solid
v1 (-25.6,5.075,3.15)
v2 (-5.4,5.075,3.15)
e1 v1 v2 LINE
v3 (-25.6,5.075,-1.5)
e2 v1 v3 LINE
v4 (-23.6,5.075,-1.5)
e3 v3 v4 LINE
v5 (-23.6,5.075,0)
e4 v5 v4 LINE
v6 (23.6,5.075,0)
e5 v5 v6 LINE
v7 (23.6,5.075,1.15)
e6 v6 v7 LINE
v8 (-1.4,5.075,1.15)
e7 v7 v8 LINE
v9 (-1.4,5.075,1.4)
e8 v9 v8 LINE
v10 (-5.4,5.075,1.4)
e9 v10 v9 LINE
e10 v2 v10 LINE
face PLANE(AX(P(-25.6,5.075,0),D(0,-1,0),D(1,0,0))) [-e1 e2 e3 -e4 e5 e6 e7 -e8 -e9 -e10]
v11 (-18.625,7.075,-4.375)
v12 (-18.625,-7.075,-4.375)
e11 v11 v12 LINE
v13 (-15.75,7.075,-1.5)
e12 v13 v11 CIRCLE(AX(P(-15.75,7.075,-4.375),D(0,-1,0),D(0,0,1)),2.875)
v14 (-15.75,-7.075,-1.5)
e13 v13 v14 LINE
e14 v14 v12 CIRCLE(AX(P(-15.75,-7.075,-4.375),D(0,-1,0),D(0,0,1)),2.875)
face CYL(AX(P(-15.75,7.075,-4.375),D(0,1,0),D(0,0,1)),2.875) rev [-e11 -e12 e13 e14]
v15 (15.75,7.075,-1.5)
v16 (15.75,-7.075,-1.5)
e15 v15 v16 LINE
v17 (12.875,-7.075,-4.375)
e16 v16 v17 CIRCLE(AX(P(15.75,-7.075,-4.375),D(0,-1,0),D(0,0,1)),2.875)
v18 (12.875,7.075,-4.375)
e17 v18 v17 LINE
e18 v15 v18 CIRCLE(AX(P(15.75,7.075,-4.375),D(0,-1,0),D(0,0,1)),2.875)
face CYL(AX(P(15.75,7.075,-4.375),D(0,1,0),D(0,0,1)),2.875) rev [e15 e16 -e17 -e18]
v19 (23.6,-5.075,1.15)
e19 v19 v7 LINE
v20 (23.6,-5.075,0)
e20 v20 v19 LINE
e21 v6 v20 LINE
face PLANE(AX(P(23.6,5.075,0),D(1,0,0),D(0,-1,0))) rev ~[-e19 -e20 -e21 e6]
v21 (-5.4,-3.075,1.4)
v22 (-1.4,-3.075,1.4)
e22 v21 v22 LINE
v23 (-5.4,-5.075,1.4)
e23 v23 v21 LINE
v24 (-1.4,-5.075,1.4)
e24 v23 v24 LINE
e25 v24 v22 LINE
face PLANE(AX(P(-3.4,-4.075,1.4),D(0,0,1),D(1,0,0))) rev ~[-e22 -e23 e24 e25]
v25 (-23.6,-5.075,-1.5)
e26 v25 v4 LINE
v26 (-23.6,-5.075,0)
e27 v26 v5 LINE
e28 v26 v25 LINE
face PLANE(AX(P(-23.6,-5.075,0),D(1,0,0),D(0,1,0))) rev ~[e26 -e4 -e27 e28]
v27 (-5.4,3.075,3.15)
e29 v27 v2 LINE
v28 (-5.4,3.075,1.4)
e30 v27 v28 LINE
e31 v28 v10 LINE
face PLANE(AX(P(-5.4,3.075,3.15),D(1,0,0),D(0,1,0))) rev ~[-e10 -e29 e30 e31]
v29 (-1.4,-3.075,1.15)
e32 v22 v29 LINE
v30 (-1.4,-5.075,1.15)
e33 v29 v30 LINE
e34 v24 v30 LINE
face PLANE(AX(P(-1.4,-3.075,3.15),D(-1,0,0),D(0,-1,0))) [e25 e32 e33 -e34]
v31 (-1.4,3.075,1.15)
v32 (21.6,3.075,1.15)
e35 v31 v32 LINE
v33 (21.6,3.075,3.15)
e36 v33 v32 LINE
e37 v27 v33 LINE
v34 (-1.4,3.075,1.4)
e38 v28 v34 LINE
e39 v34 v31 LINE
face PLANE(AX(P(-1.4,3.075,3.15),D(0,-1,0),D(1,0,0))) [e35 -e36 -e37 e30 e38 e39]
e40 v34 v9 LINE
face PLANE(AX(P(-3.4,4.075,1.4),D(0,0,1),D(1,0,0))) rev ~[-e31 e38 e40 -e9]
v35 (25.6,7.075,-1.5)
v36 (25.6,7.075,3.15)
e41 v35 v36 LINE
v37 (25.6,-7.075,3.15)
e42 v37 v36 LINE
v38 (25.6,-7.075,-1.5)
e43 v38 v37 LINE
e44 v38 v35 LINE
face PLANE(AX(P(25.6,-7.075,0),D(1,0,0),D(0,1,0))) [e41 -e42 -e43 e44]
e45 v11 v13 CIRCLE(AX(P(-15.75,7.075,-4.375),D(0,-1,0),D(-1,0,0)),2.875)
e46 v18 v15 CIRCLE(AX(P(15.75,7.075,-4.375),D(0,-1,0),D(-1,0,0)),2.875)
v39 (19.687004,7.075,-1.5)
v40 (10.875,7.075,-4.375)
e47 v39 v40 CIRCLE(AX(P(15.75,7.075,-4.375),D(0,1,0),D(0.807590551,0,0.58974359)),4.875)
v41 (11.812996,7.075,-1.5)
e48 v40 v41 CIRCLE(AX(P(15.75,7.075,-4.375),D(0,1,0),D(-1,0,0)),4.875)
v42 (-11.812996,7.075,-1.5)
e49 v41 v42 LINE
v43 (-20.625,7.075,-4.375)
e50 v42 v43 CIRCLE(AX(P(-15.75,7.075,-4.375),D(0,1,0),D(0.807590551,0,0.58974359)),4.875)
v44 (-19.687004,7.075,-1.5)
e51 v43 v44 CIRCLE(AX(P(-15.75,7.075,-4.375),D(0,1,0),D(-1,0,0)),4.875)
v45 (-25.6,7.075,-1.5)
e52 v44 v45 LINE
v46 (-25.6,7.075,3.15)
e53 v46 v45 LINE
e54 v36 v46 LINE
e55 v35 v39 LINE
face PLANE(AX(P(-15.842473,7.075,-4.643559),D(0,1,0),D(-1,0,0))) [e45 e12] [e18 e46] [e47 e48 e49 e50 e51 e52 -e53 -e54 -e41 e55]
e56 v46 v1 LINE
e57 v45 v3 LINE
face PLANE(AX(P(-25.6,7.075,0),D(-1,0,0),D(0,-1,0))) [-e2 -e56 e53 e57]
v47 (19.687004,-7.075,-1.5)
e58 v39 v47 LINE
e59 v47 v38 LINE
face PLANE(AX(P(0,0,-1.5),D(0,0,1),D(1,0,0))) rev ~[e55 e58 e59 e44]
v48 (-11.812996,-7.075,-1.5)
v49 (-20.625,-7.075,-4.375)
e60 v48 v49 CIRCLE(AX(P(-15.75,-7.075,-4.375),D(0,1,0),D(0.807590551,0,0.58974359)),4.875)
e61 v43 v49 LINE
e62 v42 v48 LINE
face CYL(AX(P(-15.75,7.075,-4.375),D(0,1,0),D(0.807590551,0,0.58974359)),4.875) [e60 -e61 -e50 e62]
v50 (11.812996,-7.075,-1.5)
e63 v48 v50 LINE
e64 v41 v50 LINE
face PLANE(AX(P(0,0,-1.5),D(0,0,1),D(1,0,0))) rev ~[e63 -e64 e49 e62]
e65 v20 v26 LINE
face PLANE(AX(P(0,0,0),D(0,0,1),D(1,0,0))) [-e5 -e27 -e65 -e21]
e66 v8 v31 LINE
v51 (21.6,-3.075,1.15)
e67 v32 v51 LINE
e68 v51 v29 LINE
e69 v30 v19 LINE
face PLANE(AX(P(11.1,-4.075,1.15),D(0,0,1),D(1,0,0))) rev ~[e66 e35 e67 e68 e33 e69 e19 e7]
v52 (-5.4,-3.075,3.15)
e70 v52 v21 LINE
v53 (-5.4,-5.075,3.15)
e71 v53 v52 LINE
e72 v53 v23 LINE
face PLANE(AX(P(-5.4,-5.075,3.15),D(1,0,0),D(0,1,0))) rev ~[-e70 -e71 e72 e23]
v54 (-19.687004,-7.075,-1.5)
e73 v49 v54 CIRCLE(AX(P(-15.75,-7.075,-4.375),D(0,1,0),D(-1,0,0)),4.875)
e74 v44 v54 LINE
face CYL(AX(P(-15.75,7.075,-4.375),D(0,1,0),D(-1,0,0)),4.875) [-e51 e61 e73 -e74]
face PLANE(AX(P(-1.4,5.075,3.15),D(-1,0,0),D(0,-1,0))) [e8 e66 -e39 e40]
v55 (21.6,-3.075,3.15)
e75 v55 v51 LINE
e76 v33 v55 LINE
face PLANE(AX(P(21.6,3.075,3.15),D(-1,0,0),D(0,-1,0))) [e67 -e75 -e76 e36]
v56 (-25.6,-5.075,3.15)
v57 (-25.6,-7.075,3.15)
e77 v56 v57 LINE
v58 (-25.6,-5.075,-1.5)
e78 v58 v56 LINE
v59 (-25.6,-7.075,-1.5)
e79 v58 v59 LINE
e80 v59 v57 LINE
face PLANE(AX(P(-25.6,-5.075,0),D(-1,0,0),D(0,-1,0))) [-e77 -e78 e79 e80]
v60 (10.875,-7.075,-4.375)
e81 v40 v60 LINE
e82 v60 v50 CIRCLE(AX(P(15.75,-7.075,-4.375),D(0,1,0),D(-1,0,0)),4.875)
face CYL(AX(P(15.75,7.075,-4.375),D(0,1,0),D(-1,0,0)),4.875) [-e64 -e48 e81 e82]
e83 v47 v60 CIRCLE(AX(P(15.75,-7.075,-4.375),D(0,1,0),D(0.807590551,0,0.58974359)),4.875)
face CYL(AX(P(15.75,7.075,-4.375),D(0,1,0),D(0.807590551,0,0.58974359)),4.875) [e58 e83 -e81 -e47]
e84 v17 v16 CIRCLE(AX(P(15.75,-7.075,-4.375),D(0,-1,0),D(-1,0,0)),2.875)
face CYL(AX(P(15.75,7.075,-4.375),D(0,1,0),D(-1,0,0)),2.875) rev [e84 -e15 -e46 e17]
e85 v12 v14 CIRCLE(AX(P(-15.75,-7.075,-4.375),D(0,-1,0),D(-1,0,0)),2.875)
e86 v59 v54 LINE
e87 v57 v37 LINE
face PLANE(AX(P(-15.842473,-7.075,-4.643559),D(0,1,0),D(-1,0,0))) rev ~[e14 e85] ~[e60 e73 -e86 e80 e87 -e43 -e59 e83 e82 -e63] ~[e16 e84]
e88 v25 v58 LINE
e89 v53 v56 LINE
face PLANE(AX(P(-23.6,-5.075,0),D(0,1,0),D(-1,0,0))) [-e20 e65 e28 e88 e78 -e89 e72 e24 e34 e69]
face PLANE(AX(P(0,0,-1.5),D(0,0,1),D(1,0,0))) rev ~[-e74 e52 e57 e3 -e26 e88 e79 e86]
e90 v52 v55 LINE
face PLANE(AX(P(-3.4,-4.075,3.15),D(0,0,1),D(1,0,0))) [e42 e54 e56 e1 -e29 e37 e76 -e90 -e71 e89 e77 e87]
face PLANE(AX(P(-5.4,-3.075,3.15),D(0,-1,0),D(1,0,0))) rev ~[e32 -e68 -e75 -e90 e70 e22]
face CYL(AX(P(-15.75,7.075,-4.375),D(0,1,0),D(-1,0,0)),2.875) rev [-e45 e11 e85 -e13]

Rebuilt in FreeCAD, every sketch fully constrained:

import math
import FreeCAD as App
import Part
import Sketcher
Q = App.Units.Quantity

doc = App.newDocument("Part")
body = doc.addObject("PartDesign::Body", "Body")

sketch1 = body.newObject("Sketcher::SketchObject", "Sketch")
sketch1.AttachmentSupport = (doc.getObject("XY_Plane"), [""])
sketch1.MapMode = "FlatFace"
sketch1.addGeometry([
    Part.LineSegment(App.Vector(23.6, 5.1, 0), App.Vector(23.6, -5.1, 0)),
    Part.LineSegment(App.Vector(23.6, -5.1, 0), App.Vector(-25.6, -5.1, 0)),
    Part.LineSegment(App.Vector(-25.6, -5.1, 0), App.Vector(-25.6, -7.1, 0)),
    Part.LineSegment(App.Vector(-25.6, -7.1, 0), App.Vector(25.6, -7.1, 0)),
    Part.LineSegment(App.Vector(25.6, -7.1, 0), App.Vector(25.6, 7.1, 0)),
    Part.LineSegment(App.Vector(25.6, 7.1, 0), App.Vector(-25.6, 7.1, 0)),
    Part.LineSegment(App.Vector(-25.6, 7.1, 0), App.Vector(-25.6, 5.1, 0)),
    Part.LineSegment(App.Vector(-25.6, 5.1, 0), App.Vector(23.6, 5.1, 0)),
], False)
sketch1.addConstraint([
    Sketcher.Constraint("Coincident", 0, 2, 1, 1),
    Sketcher.Constraint("Coincident", 1, 2, 2, 1),
    Sketcher.Constraint("Coincident", 2, 2, 3, 1),
    Sketcher.Constraint("Coincident", 3, 2, 4, 1),
    Sketcher.Constraint("Coincident", 4, 2, 5, 1),
    Sketcher.Constraint("Coincident", 5, 2, 6, 1),
    Sketcher.Constraint("Coincident", 6, 2, 7, 1),
    Sketcher.Constraint("Coincident", 7, 2, 0, 1),
    Sketcher.Constraint("Vertical", 0),
    Sketcher.Constraint("Horizontal", 1),
    Sketcher.Constraint("Vertical", 2),
    Sketcher.Constraint("Horizontal", 3),
    Sketcher.Constraint("Vertical", 4),
    Sketcher.Constraint("Horizontal", 5),
    Sketcher.Constraint("Vertical", 6),
    Sketcher.Constraint("Horizontal", 7),
    Sketcher.Constraint("Symmetric", 2, 2, 4, 2, -1, 1),
    Sketcher.Constraint("Symmetric", 1, 2, 6, 2, -1),
    Sketcher.Constraint("DistanceY", 2, 2, 2, 1, Q("2 mm")),
    Sketcher.Constraint("DistanceX", 1, 2, 1, 1, Q("49.2 mm")),
    Sketcher.Constraint("DistanceX", 3, 1, 3, 2, Q("51.2 mm")),
    Sketcher.Constraint("DistanceY", 0, 2, 0, 1, Q("10.15 mm")),
])
pad1 = body.newObject("PartDesign::Pad", "Pad")
pad1.Profile = sketch1
pad1.Length = 3.15

sketch2 = body.newObject("Sketcher::SketchObject", "Sketch001")
sketch2.AttachmentSupport = (doc.getObject("XY_Plane"), [""])
sketch2.MapMode = "FlatFace"
sketch2.addGeometry([
    Part.LineSegment(App.Vector(-23.6, 5.1, 0), App.Vector(-23.6, -5.1, 0)),
    Part.LineSegment(App.Vector(-23.6, -5.1, 0), App.Vector(-25.6, -5.1, 0)),
    Part.LineSegment(App.Vector(-25.6, -5.1, 0), App.Vector(-25.6, -7.1, 0)),
    Part.LineSegment(App.Vector(-25.6, -7.1, 0), App.Vector(25.6, -7.1, 0)),
    Part.LineSegment(App.Vector(25.6, -7.1, 0), App.Vector(25.6, 7.1, 0)),
    Part.LineSegment(App.Vector(25.6, 7.1, 0), App.Vector(-25.6, 7.1, 0)),
    Part.LineSegment(App.Vector(-25.6, 7.1, 0), App.Vector(-25.6, 5.1, 0)),
    Part.LineSegment(App.Vector(-25.6, 5.1, 0), App.Vector(-23.6, 5.1, 0)),
], False)
sketch2.addConstraint([
    Sketcher.Constraint("Coincident", 0, 2, 1, 1),
    Sketcher.Constraint("Coincident", 1, 2, 2, 1),
    Sketcher.Constraint("Coincident", 2, 2, 3, 1),
    Sketcher.Constraint("Coincident", 3, 2, 4, 1),
    Sketcher.Constraint("Coincident", 4, 2, 5, 1),
    Sketcher.Constraint("Coincident", 5, 2, 6, 1),
    Sketcher.Constraint("Coincident", 6, 2, 7, 1),
    Sketcher.Constraint("Coincident", 7, 2, 0, 1),
    Sketcher.Constraint("Vertical", 0),
    Sketcher.Constraint("Horizontal", 1),
    Sketcher.Constraint("Vertical", 2),
    Sketcher.Constraint("Horizontal", 3),
    Sketcher.Constraint("Vertical", 4),
    Sketcher.Constraint("Horizontal", 5),
    Sketcher.Constraint("Vertical", 6),
    Sketcher.Constraint("Horizontal", 7),
    Sketcher.Constraint("Symmetric", 2, 2, 4, 2, -1, 1),
    Sketcher.Constraint("Symmetric", 1, 2, 6, 2, -1),
    Sketcher.Constraint("Equal", 7, 2),
    Sketcher.Constraint("DistanceX", 1, 2, 1, 1, Q("2 mm")),
    Sketcher.Constraint("DistanceX", 3, 1, 3, 2, Q("51.2 mm")),
    Sketcher.Constraint("DistanceY", 0, 2, 0, 1, Q("10.15 mm")),
])
pad2 = body.newObject("PartDesign::Pad", "Pad001")
pad2.Profile = sketch2
pad2.Length = 1.5
pad2.Reversed = True

sketch3 = body.newObject("Sketcher::SketchObject", "Sketch002")
sketch3.AttachmentSupport = (doc.getObject("XY_Plane"), [""])
sketch3.MapMode = "FlatFace"
sketch3.AttachmentOffset = App.Placement(App.Vector(0, 0, 3.15), App.Rotation())
sketch3.addGeometry([
    Part.LineSegment(App.Vector(23.6, -5.1, 0), App.Vector(23.6, 5.1, 0)),
    Part.LineSegment(App.Vector(23.6, 5.1, 0), App.Vector(-1.4, 5.1, 0)),
    Part.LineSegment(App.Vector(-1.4, 5.1, 0), App.Vector(-1.4, 3.1, 0)),
    Part.LineSegment(App.Vector(-1.4, 3.1, 0), App.Vector(21.6, 3.1, 0)),
    Part.LineSegment(App.Vector(21.6, 3.1, 0), App.Vector(21.6, -3.1, 0)),
    Part.LineSegment(App.Vector(21.6, -3.1, 0), App.Vector(-1.4, -3.1, 0)),
    Part.LineSegment(App.Vector(-1.4, -3.1, 0), App.Vector(-1.4, -5.1, 0)),
    Part.LineSegment(App.Vector(-1.4, -5.1, 0), App.Vector(23.6, -5.1, 0)),
], False)
sketch3.addConstraint([
    Sketcher.Constraint("Coincident", 0, 2, 1, 1),
    Sketcher.Constraint("Coincident", 1, 2, 2, 1),
    Sketcher.Constraint("Coincident", 2, 2, 3, 1),
    Sketcher.Constraint("Coincident", 3, 2, 4, 1),
    Sketcher.Constraint("Coincident", 4, 2, 5, 1),
    Sketcher.Constraint("Coincident", 5, 2, 6, 1),
    Sketcher.Constraint("Coincident", 6, 2, 7, 1),
    Sketcher.Constraint("Coincident", 7, 2, 0, 1),
    Sketcher.Constraint("Vertical", 0),
    Sketcher.Constraint("Horizontal", 1),
    Sketcher.Constraint("Vertical", 2),
    Sketcher.Constraint("Horizontal", 3),
    Sketcher.Constraint("Vertical", 4),
    Sketcher.Constraint("Horizontal", 5),
    Sketcher.Constraint("Vertical", 6),
    Sketcher.Constraint("Horizontal", 7),
    Sketcher.Constraint("Symmetric", 2, 2, 5, 2, -1),
    Sketcher.Constraint("Equal", 2, 6),
    Sketcher.Constraint("DistanceX", 1, 2, 1, 1, Q("25 mm")),
    Sketcher.Constraint("DistanceX", 3, 1, 3, 2, Q("23 mm")),
    Sketcher.Constraint("DistanceY", 2, 2, 2, 1, Q("2 mm")),
    Sketcher.Constraint("DistanceY", 0, 1, 0, 2, Q("10.15 mm")),
    Sketcher.Constraint("DistanceX", -1, 1, 0, 2, Q("23.6 mm")),
])
pad3 = body.newObject("PartDesign::Pad", "Pad002")
pad3.Profile = sketch3
pad3.Length = 2
pad3.Reversed = True

sketch4 = body.newObject("Sketcher::SketchObject", "Sketch003")
sketch4.AttachmentSupport = (doc.getObject("XY_Plane"), [""])
sketch4.MapMode = "FlatFace"
sketch4.AttachmentOffset = App.Placement(App.Vector(0, 0, 3.15), App.Rotation())
sketch4.addGeometry([
    Part.LineSegment(App.Vector(-5.4, -3.1, 0), App.Vector(-5.4, -5.1, 0)),
    Part.LineSegment(App.Vector(-5.4, -5.1, 0), App.Vector(-1.4, -5.1, 0)),
    Part.LineSegment(App.Vector(-1.4, -5.1, 0), App.Vector(-1.4, -3.1, 0)),
    Part.LineSegment(App.Vector(-1.4, -3.1, 0), App.Vector(-5.4, -3.1, 0)),
    Part.LineSegment(App.Vector(-5.4, 5.1, 0), App.Vector(-5.4, 3.1, 0)),
    Part.LineSegment(App.Vector(-5.4, 3.1, 0), App.Vector(-1.4, 3.1, 0)),
    Part.LineSegment(App.Vector(-1.4, 3.1, 0), App.Vector(-1.4, 5.1, 0)),
    Part.LineSegment(App.Vector(-1.4, 5.1, 0), App.Vector(-5.4, 5.1, 0)),
], False)
sketch4.addConstraint([
    Sketcher.Constraint("Coincident", 0, 2, 1, 1),
    Sketcher.Constraint("Coincident", 1, 2, 2, 1),
    Sketcher.Constraint("Coincident", 2, 2, 3, 1),
    Sketcher.Constraint("Coincident", 3, 2, 0, 1),
    Sketcher.Constraint("Coincident", 4, 2, 5, 1),
    Sketcher.Constraint("Coincident", 5, 2, 6, 1),
    Sketcher.Constraint("Coincident", 6, 2, 7, 1),
    Sketcher.Constraint("Coincident", 7, 2, 4, 1),
    Sketcher.Constraint("Vertical", 0),
    Sketcher.Constraint("Horizontal", 1),
    Sketcher.Constraint("Vertical", 2),
    Sketcher.Constraint("Horizontal", 3),
    Sketcher.Constraint("Vertical", 4),
    Sketcher.Constraint("Horizontal", 5),
    Sketcher.Constraint("Vertical", 6),
    Sketcher.Constraint("Horizontal", 7),
    Sketcher.Constraint("Symmetric", 3, 2, 4, 2, -1),
    Sketcher.Constraint("Symmetric", 1, 2, 6, 2, -1),
    Sketcher.Constraint("DistanceX", 1, 1, 1, 2, Q("4 mm")),
    Sketcher.Constraint("DistanceY", 0, 2, 0, 1, Q("2 mm")),
    Sketcher.Constraint("DistanceX", 0, 2, -1, 1, Q("5.4 mm")),
    Sketcher.Constraint("DistanceY", 3, 2, 4, 2, Q("6.15 mm")),
])
pad4 = body.newObject("PartDesign::Pad", "Pad003")
pad4.Profile = sketch4
pad4.Length = 1.75
pad4.Reversed = True

sketch5 = body.newObject("Sketcher::SketchObject", "Sketch004")
sketch5.AttachmentSupport = (doc.getObject("XZ_Plane"), [""])
sketch5.MapMode = "FlatFace"
sketch5.AttachmentOffset = App.Placement(App.Vector(0, 0, -7.075), App.Rotation())
sketch5.addGeometry([
    Part.ArcOfCircle(Part.Circle(App.Vector(-15.8, -4.4, 0), App.Vector(0, 0, 1), 4.9), math.radians(144), math.radians(180)),
    Part.ArcOfCircle(Part.Circle(App.Vector(-15.8, -4.4, 0), App.Vector(0, 0, 1), 4.9), math.radians(116), math.radians(144)),
    Part.LineSegment(App.Vector(-17.9, 0, 0), App.Vector(-13.6, 0, 0)),
    Part.ArcOfCircle(Part.Circle(App.Vector(-15.8, -4.4, 0), App.Vector(0, 0, 1), 4.9), math.radians(36), math.radians(64)),
    Part.ArcOfCircle(Part.Circle(App.Vector(-15.8, -4.4, 0), App.Vector(0, 0, 1), 4.9), math.radians(180), math.radians(396)),
    Part.ArcOfCircle(Part.Circle(App.Vector(-15.8, -4.4, 0), App.Vector(0, 0, 1), 2.9), math.radians(180), math.radians(450)),
    Part.ArcOfCircle(Part.Circle(App.Vector(-15.8, -4.4, 0), App.Vector(0, 0, 1), 2.9), math.radians(90), math.radians(180)),
    Part.ArcOfCircle(Part.Circle(App.Vector(15.8, -4.4, 0), App.Vector(0, 0, 1), 4.9), math.radians(116), math.radians(144)),
    Part.LineSegment(App.Vector(13.6, 0, 0), App.Vector(17.9, 0, 0)),
    Part.ArcOfCircle(Part.Circle(App.Vector(15.8, -4.4, 0), App.Vector(0, 0, 1), 4.9), math.radians(36), math.radians(64)),
    Part.ArcOfCircle(Part.Circle(App.Vector(15.8, -4.4, 0), App.Vector(0, 0, 1), 4.9), math.radians(180), math.radians(396)),
    Part.ArcOfCircle(Part.Circle(App.Vector(15.8, -4.4, 0), App.Vector(0, 0, 1), 4.9), math.radians(144), math.radians(180)),
    Part.ArcOfCircle(Part.Circle(App.Vector(15.8, -4.4, 0), App.Vector(0, 0, 1), 2.9), math.radians(90), math.radians(180)),
    Part.ArcOfCircle(Part.Circle(App.Vector(15.8, -4.4, 0), App.Vector(0, 0, 1), 2.9), math.radians(180), math.radians(450)),
], False)
sketch5.addConstraint([
    Sketcher.Constraint("Tangent", 0, 1, 1, 2),
    Sketcher.Constraint("Coincident", 1, 1, 2, 1),
    Sketcher.Constraint("Coincident", 2, 2, 3, 2),
    Sketcher.Constraint("Tangent", 3, 1, 4, 2),
    Sketcher.Constraint("Tangent", 4, 1, 0, 2),
    Sketcher.Constraint("Tangent", 5, 1, 6, 2),
    Sketcher.Constraint("Coincident", 6, 1, 5, 2),
    Sketcher.Constraint("Coincident", 7, 1, 8, 1),
    Sketcher.Constraint("Coincident", 8, 2, 9, 2),
    Sketcher.Constraint("Tangent", 9, 1, 10, 2),
    Sketcher.Constraint("Tangent", 10, 1, 11, 2),
    Sketcher.Constraint("Tangent", 11, 1, 7, 2),
    Sketcher.Constraint("Tangent", 12, 1, 13, 2),
    Sketcher.Constraint("Coincident", 13, 1, 12, 2),
    Sketcher.Constraint("Horizontal", 2),
    Sketcher.Constraint("Horizontal", 8),
    Sketcher.Constraint("Coincident", 3, 3, 0, 3),
    Sketcher.Constraint("Coincident", 5, 3, 0, 3),
    Sketcher.Constraint("Coincident", 9, 3, 7, 3),
    Sketcher.Constraint("Coincident", 12, 3, 7, 3),
    Sketcher.Constraint("Equal", 0, 1),
    Sketcher.Constraint("Equal", 4, 7),
    Sketcher.Constraint("Equal", 7, 9),
    Sketcher.Constraint("Equal", 6, 12),
    Sketcher.Constraint("Symmetric", 2, 2, 7, 1, -1, 1),
    Sketcher.Constraint("Symmetric", 0, 3, 7, 3, -2),
    Sketcher.Constraint("Horizontal", 0, 1, 3, 1),
    Sketcher.Constraint("Horizontal", 13, 3, 4, 1),
    Sketcher.Constraint("Horizontal", 4, 1, 5, 1),
    Sketcher.Constraint("Horizontal", 3, 1, 6, 1),
    Sketcher.Constraint("Horizontal", 6, 1, 9, 1),
    Sketcher.Constraint("Horizontal", 5, 1, 10, 1),
    Sketcher.Constraint("Horizontal", 9, 1, 11, 1),
    Sketcher.Constraint("Horizontal", 10, 1, 13, 1),
    Sketcher.Constraint("Vertical", 5, 3, 6, 1),
    Sketcher.Constraint("Vertical", 13, 3, 12, 1),
    Sketcher.Constraint("Radius", 0, Q("4.875 mm")),
    Sketcher.Constraint("Radius", 5, Q("2.875 mm")),
    Sketcher.Constraint("DistanceY", 0, 1, -1, 1, Q("1.5 mm")),
    Sketcher.Constraint("DistanceX", 0, 3, 7, 3, Q("31.5 mm")),
])
pad5 = body.newObject("PartDesign::Pad", "Pad004")
pad5.Profile = sketch5
pad5.Length = 14.15

doc.recompute()
